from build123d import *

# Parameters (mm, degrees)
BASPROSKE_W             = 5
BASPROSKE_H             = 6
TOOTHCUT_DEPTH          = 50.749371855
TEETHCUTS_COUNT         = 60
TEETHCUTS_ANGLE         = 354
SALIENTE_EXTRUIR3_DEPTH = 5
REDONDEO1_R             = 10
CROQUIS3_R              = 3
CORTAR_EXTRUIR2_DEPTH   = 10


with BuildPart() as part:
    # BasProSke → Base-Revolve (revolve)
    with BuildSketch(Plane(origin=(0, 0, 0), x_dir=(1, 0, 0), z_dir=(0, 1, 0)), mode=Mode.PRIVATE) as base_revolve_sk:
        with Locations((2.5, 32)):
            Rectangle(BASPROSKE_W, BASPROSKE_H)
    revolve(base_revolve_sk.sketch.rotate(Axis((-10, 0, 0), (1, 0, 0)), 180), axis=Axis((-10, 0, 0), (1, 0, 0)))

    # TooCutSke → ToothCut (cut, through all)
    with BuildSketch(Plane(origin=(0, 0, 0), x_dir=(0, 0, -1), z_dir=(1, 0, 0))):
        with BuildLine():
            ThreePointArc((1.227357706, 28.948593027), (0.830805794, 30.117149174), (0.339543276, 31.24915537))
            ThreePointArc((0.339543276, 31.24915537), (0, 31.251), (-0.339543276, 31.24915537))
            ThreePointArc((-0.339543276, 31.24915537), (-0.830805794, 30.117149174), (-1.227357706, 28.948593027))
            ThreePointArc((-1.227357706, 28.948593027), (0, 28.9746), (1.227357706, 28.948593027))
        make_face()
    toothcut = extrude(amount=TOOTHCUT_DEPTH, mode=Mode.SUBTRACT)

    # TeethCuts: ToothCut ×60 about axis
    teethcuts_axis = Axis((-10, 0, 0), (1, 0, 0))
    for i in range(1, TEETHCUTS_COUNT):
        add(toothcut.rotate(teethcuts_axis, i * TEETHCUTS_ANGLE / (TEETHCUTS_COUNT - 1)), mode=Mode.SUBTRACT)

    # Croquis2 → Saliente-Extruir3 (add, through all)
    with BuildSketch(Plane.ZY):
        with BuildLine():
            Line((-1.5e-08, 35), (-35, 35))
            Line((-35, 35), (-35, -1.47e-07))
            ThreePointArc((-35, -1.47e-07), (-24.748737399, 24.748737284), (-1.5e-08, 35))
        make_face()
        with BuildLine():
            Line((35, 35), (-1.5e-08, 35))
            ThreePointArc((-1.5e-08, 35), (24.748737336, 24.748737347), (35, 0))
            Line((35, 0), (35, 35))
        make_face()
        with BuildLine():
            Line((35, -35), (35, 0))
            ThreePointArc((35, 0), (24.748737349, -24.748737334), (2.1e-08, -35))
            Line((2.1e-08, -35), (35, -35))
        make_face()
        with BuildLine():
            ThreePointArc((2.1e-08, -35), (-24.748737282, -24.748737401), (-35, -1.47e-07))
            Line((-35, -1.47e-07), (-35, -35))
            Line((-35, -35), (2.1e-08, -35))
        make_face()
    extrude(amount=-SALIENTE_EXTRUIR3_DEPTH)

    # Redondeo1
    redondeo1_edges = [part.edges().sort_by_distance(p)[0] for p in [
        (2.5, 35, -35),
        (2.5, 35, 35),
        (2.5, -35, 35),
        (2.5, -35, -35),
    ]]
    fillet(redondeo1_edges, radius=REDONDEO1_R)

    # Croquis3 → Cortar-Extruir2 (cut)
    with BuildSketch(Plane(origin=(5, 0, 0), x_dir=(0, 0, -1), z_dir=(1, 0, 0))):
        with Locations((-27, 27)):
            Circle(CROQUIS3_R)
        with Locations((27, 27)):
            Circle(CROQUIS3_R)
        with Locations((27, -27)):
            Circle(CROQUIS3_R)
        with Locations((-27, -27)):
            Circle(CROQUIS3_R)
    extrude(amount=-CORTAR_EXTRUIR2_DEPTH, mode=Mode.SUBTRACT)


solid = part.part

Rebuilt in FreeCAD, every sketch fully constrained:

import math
import FreeCAD as App
import Part
import Sketcher

V = App.Vector


def edges_at(feature, points):
    """Names of the edges that pass closest to the given points."""
    edges = feature.Shape.Edges
    near = lambda p: min(range(len(edges)), key=lambda i: edges[i].distToShape(Part.Vertex(*p))[0])
    return sorted({f"Edge{near(p) + 1}" for p in points})


def add_polygon(sketch, points):
    """Adds a closed chain of lines whose ends are joined by coincident constraints."""
    first, n = sketch.GeometryCount, len(points)
    for a, b in zip(points, points[1:] + points[:1]):
        sketch.addGeometry(Part.LineSegment(App.Vector(*a, 0), App.Vector(*b, 0)), False)
    for i in range(n):
        sketch.addConstraint(Sketcher.Constraint("Coincident", first + i, 2, first + (i + 1) % n, 1))

doc = App.newDocument("Part")
body = doc.addObject("PartDesign::Body", "Body")

# Sketch on XZ plane
sketch1 = doc.addObject("Sketcher::SketchObject", "Sketch")
body.addObject(sketch1)
sketch1.AttachmentSupport = (doc.XZ_Plane, [""])
sketch1.MapMode = "FlatFace"
add_polygon(sketch1, [(0, -35), (0, -29), (5, -29), (5, -35)])  # lines 0-3
sketch1.addConstraint([
    Sketcher.Constraint("Vertical", 0),
    Sketcher.Constraint("Horizontal", 1),
    Sketcher.Constraint("Vertical", 2),
    Sketcher.Constraint("Horizontal", 3),
    Sketcher.Constraint("PointOnObject", 0, 2, -2),
    Sketcher.Constraint("DistanceX", 1, 1, 1, 2, 5.0),
    Sketcher.Constraint("DistanceY", 0, 1, 0, 2, 6.0),
    Sketcher.Constraint("DistanceY", 0, 2, -1, 1, 29.0),
])
revolution = doc.addObject("PartDesign::Revolution", "Revolution")
body.addObject(revolution)
revolution.Profile = sketch1
revolution.ReferenceAxis = (sketch1, ["H_Axis"])
revolution.Angle = 360

# Sketch on YZ plane
sketch2 = doc.addObject("Sketcher::SketchObject", "Sketch001")
body.addObject(sketch2)
sketch2.AttachmentSupport = (doc.YZ_Plane, [""])
sketch2.MapMode = "FlatFace"
sketch2.addGeometry([
    Part.ArcOfCircle(Part.Circle(V(24.7, 13.2, 0), V(0, 0, 1), 15), math.radians(-73.61), math.radians(-64.18)),
    Part.ArcOfCircle(Part.Circle(V(0, 0, 0), V(0, 0, 1), 31.3), math.radians(-0.62), math.radians(0.62)),
    Part.ArcOfCircle(Part.Circle(V(24.7, -13.2, 0), V(0, 0, 1), 15), math.radians(64.18), math.radians(73.61)),
    Part.ArcOfCircle(Part.Circle(V(0, 0, 0), V(0, 0, 1), 29), math.radians(-2.43), math.radians(2.43)),
], False)
sketch2.addConstraint([
    Sketcher.Constraint("Coincident", 0, 2, 1, 1),
    Sketcher.Constraint("Coincident", 1, 2, 2, 1),
    Sketcher.Constraint("Coincident", 2, 2, 3, 2),
    Sketcher.Constraint("Coincident", 3, 1, 0, 1),
    Sketcher.Constraint("Coincident", 1, 3, -1, 1),
    Sketcher.Constraint("Coincident", 3, 3, -1, 1),
    Sketcher.Constraint("Equal", 0, 2),
    Sketcher.Constraint("Symmetric", 0, 3, 2, 3, -1),
    Sketcher.Constraint("Radius", 0, 15.0),
    Sketcher.Constraint("Radius", 3, 28.9746),
    Sketcher.Constraint("Radius", 1, 31.250993),
    Sketcher.Constraint("DistanceY", 0, 2, 2, 2, 1.566901),
    Sketcher.Constraint("DistanceX", -1, 1, 0, 3, 24.716661),
])
pocket1 = doc.addObject("PartDesign::Pocket", "Pocket")
body.addObject(pocket1)
pocket1.Profile = sketch2
pocket1.Type = "ThroughAll"
pocket1.Reversed = True
doc.recompute()

polarpattern = doc.addObject("PartDesign::PolarPattern", "PolarPattern")
body.addObject(polarpattern)
polarpattern.Originals = [pocket1]
polarpattern.Axis = (doc.X_Axis, [""])
polarpattern.Angle = 360
polarpattern.Occurrences = 60
body.Tip = polarpattern

# Sketch on YZ plane
sketch3 = doc.addObject("Sketcher::SketchObject", "Sketch002")
body.addObject(sketch3)
sketch3.AttachmentSupport = (doc.YZ_Plane, [""])
sketch3.MapMode = "FlatFace"
sketch3.addGeometry([
    Part.LineSegment(V(35, 0, 0), V(35, -35, 0)),  # 0
    Part.LineSegment(V(35, -35, 0), V(0, -35, 0)),  # 1
    Part.ArcOfCircle(Part.Circle(V(0, 0, 0), V(0, 0, 1), 35), math.radians(-90), math.radians(0)),  # 2
    Part.LineSegment(V(35, 35, 0), V(35, 0, 0)),  # 3
    Part.ArcOfCircle(Part.Circle(V(0, 0, 0), V(0, 0, 1), 35), math.radians(0), math.radians(90)),  # 4
    Part.LineSegment(V(0, 35, 0), V(35, 35, 0)),  # 5
    Part.LineSegment(V(-35, 35, 0), V(0, 35, 0)),  # 6
    Part.ArcOfCircle(Part.Circle(V(0, 0, 0), V(0, 0, 1), 35), math.radians(90), math.radians(180)),  # 7
    Part.LineSegment(V(-35, 0, 0), V(-35, 35, 0)),  # 8
    Part.ArcOfCircle(Part.Circle(V(0, 0, 0), V(0, 0, 1), 35), math.radians(180), math.radians(270)),  # 9
    Part.LineSegment(V(0, -35, 0), V(-35, -35, 0)),  # 10
    Part.LineSegment(V(-35, -35, 0), V(-35, 0, 0)),  # 11
], False)
sketch3.addConstraint([
    Sketcher.Constraint("Coincident", 0, 2, 1, 1),
    Sketcher.Constraint("Tangent", 1, 2, 2, 1),
    Sketcher.Constraint("Tangent", 2, 2, 0, 1),
    Sketcher.Constraint("Tangent", 3, 2, 4, 1),
    Sketcher.Constraint("Tangent", 4, 2, 5, 1),
    Sketcher.Constraint("Coincident", 5, 2, 3, 1),
    Sketcher.Constraint("Tangent", 6, 2, 7, 1),
    Sketcher.Constraint("Tangent", 7, 2, 8, 1),
    Sketcher.Constraint("Coincident", 8, 2, 6, 1),
    Sketcher.Constraint("Tangent", 9, 2, 10, 1),
    Sketcher.Constraint("Coincident", 10, 2, 11, 1),
    Sketcher.Constraint("Tangent", 11, 2, 9, 1),
    Sketcher.Constraint("Vertical", 0),
    Sketcher.Constraint("Horizontal", 1),
    Sketcher.Constraint("Vertical", 3),
    Sketcher.Constraint("Horizontal", 5),
    Sketcher.Constraint("Horizontal", 6),
    Sketcher.Constraint("Vertical", 8),
    Sketcher.Constraint("Horizontal", 10),
    Sketcher.Constraint("Vertical", 11),
    Sketcher.Constraint("Coincident", 2, 3, -1, 1),
    Sketcher.Constraint("Coincident", 4, 3, -1, 1),
    Sketcher.Constraint("Coincident", 7, 3, -1, 1),
    Sketcher.Constraint("Coincident", 9, 3, -1, 1),
    Sketcher.Constraint("Equal", 2, 4),
    Sketcher.Constraint("Equal", 4, 7),
    Sketcher.Constraint("Equal", 7, 9),
    Sketcher.Constraint("Radius", 2, 35.0),
])
pad1 = doc.addObject("PartDesign::Pad", "Pad")
body.addObject(pad1)
pad1.Profile = sketch3
pad1.Length = 5
doc.recompute()

fillet = doc.addObject("PartDesign::Fillet", "Fillet")
body.addObject(fillet)
fillet.Base = (pad1, edges_at(pad1, [
    (2.5, 35, -35),
    (2.5, 35, 35),
    (2.5, -35, 35),
    (2.5, -35, -35),
]))
fillet.Radius = 10

# Sketch on YZ plane
sketch4 = doc.addObject("Sketcher::SketchObject", "Sketch003")
body.addObject(sketch4)
sketch4.AttachmentSupport = (doc.YZ_Plane, [""])
sketch4.MapMode = "FlatFace"
sketch4.AttachmentOffset = App.Placement(V(0, 0, 5), App.Rotation())
sketch4.addGeometry([
    Part.Circle(V(27, 27, 0), V(0, 0, 1), 3),
    Part.Circle(V(27, -27, 0), V(0, 0, 1), 3),
    Part.Circle(V(-27, -27, 0), V(0, 0, 1), 3),
    Part.Circle(V(-27, 27, 0), V(0, 0, 1), 3),
], False)
sketch4.addConstraint([
    Sketcher.Constraint("Equal", 0, 1),
    Sketcher.Constraint("Equal", 1, 2),
    Sketcher.Constraint("Equal", 2, 3),
    Sketcher.Constraint("Symmetric", 0, 3, 2, 3, -1, 1),
    Sketcher.Constraint("Symmetric", 1, 3, 3, 3, -1, 1),
    Sketcher.Constraint("Symmetric", 1, 3, 2, 3, -2),
    Sketcher.Constraint("Diameter", 0, 6.0),
    Sketcher.Constraint("DistanceX", -1, 1, 0, 3, 27.0),
    Sketcher.Constraint("DistanceY", -1, 1, 0, 3, 27.0),
])
pocket2 = doc.addObject("PartDesign::Pocket", "Pocket001")
body.addObject(pocket2)
pocket2.Profile = sketch4
pocket2.Length = 10

doc.recompute()
